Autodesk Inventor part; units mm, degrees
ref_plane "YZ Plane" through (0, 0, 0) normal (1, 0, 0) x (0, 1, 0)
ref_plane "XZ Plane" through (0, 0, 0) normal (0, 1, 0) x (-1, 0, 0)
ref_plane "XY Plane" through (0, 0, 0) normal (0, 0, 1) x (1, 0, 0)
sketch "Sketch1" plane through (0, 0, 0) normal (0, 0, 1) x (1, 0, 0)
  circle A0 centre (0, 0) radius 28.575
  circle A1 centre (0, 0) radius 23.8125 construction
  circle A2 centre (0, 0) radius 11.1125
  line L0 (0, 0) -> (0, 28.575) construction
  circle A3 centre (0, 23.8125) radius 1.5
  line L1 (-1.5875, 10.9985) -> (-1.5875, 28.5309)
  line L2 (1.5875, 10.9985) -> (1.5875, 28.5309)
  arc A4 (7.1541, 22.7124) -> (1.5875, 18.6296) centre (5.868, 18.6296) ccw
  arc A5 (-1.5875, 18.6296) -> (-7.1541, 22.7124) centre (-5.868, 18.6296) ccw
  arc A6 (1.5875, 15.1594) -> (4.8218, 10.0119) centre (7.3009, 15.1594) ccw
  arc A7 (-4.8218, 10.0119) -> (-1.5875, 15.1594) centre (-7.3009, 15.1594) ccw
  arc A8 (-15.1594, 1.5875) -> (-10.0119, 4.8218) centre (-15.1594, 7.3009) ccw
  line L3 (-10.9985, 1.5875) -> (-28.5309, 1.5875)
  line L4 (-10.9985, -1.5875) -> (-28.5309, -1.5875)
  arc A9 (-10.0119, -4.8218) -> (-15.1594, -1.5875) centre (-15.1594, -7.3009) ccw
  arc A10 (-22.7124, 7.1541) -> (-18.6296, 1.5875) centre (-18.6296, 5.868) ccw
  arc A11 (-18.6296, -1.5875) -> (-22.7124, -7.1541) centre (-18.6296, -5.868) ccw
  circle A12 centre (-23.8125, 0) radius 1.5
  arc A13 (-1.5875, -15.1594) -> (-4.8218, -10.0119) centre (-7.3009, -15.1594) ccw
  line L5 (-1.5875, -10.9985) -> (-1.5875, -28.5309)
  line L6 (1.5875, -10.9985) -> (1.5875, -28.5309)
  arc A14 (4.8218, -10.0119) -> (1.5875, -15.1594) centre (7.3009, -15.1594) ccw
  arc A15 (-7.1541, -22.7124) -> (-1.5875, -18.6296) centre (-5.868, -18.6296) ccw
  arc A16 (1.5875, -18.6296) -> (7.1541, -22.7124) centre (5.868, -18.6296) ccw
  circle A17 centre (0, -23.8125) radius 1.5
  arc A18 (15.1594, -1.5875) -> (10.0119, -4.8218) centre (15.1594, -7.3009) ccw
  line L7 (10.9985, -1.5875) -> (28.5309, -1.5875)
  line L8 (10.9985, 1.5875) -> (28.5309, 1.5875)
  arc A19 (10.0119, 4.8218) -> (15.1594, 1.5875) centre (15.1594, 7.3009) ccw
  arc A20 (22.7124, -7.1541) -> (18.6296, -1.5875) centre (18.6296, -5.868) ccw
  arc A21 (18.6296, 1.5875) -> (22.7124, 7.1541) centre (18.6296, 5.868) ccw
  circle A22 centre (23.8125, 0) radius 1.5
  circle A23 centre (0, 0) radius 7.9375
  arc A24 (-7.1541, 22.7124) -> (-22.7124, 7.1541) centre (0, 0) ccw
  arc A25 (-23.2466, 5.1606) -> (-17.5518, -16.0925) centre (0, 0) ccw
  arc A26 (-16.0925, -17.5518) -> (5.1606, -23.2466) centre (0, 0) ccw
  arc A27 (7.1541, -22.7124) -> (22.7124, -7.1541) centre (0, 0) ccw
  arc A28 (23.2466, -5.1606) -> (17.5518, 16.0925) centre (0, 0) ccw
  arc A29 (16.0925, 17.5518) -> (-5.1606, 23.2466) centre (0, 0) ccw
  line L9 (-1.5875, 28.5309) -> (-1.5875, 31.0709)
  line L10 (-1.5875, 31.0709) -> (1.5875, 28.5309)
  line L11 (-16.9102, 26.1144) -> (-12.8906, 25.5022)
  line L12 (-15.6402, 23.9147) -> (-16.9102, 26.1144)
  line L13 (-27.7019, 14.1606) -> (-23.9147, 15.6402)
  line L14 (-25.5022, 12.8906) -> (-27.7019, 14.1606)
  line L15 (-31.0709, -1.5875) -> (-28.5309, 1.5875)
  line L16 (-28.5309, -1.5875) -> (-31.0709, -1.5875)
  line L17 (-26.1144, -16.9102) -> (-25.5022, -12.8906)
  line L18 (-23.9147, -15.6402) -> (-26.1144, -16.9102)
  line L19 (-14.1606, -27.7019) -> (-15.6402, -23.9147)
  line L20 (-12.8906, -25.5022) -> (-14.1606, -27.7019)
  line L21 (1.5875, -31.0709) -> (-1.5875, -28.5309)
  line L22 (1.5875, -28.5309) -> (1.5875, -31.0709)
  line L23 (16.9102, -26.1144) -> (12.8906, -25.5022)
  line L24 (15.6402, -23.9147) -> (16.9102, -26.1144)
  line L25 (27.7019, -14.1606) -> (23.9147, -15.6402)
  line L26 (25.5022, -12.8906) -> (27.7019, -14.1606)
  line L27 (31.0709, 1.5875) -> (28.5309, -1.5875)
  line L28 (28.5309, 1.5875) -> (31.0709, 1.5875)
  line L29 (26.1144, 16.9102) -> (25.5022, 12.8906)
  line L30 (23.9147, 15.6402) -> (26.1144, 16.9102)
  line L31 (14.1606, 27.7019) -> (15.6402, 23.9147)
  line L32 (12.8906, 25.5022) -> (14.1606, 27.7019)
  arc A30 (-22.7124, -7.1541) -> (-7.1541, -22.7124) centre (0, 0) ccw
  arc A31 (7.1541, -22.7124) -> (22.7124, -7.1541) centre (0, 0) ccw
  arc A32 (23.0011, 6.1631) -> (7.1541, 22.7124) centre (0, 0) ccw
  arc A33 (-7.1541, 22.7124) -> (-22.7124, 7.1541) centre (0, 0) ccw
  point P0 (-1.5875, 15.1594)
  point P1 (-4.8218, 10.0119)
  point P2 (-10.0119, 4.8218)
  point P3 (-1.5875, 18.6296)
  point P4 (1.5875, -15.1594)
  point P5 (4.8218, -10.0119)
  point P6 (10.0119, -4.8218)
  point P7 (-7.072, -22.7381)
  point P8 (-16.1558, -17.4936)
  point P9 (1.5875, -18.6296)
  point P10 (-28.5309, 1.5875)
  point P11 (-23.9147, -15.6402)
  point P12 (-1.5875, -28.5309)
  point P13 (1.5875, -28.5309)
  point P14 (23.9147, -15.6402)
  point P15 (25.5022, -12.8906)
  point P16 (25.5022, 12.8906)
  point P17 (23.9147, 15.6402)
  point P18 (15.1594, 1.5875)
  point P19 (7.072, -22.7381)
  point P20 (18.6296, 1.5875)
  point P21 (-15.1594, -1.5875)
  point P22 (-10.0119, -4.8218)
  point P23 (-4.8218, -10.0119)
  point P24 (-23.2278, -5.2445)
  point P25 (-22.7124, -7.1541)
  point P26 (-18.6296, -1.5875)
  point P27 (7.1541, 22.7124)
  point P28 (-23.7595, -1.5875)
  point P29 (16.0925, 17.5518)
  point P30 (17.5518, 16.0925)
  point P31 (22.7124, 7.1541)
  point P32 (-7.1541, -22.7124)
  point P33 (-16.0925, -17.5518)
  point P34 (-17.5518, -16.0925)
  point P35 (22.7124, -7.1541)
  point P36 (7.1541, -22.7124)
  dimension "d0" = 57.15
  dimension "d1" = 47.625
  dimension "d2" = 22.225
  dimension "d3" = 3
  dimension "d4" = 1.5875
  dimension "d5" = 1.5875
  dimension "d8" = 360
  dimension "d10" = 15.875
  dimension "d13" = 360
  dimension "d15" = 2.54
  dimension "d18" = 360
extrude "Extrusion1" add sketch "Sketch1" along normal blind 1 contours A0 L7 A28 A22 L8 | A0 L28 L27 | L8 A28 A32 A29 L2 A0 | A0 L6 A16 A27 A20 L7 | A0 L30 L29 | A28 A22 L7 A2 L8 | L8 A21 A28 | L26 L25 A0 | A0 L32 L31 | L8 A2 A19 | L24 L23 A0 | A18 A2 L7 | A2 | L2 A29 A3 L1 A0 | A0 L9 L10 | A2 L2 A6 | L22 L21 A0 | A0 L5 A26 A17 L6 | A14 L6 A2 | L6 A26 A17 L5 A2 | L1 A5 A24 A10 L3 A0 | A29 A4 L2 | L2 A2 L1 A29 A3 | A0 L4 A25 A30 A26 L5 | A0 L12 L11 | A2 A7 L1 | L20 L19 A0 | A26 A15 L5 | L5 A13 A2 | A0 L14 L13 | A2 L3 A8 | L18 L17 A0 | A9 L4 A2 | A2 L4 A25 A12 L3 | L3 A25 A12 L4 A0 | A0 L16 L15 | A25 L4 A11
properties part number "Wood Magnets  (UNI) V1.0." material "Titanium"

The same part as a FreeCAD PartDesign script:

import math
import FreeCAD as App
import Part
import Sketcher
Q = App.Units.Quantity

doc = App.newDocument("Part")
body = doc.addObject("PartDesign::Body", "Body")

sketch1 = body.newObject("Sketcher::SketchObject", "Sketch")
sketch1.AttachmentSupport = (doc.getObject("XY_Plane"), [""])
sketch1.MapMode = "FlatFace"
sketch1.addGeometry([
    Part.LineSegment(App.Vector(28.5, -1.6, 0), App.Vector(31.1, 1.6, 0)),
    Part.LineSegment(App.Vector(31.1, 1.6, 0), App.Vector(28.5, 1.6, 0)),
    Part.ArcOfCircle(Part.Circle(App.Vector(0, 0, 0), App.Vector(0, 0, 1), 28.6), math.radians(3), math.radians(27)),
    Part.LineSegment(App.Vector(25.5, 12.9, 0), App.Vector(26.1, 16.9, 0)),
    Part.LineSegment(App.Vector(26.1, 16.9, 0), App.Vector(23.9, 15.6, 0)),
    Part.ArcOfCircle(Part.Circle(App.Vector(0, 0, 0), App.Vector(0, 0, 1), 28.6), math.radians(33), math.radians(57)),
    Part.LineSegment(App.Vector(15.6, 23.9, 0), App.Vector(14.2, 27.7, 0)),
    Part.LineSegment(App.Vector(14.2, 27.7, 0), App.Vector(12.9, 25.5, 0)),
    Part.ArcOfCircle(Part.Circle(App.Vector(0, 0, 0), App.Vector(0, 0, 1), 28.6), math.radians(63), math.radians(87)),
    Part.LineSegment(App.Vector(1.6, 28.5, 0), App.Vector(-1.6, 31.1, 0)),
    Part.LineSegment(App.Vector(-1.6, 31.1, 0), App.Vector(-1.6, 28.5, 0)),
    Part.ArcOfCircle(Part.Circle(App.Vector(0, 0, 0), App.Vector(0, 0, 1), 28.6), math.radians(93), math.radians(117)),
    Part.LineSegment(App.Vector(-12.9, 25.5, 0), App.Vector(-16.9, 26.1, 0)),
    Part.LineSegment(App.Vector(-16.9, 26.1, 0), App.Vector(-15.6, 23.9, 0)),
    Part.ArcOfCircle(Part.Circle(App.Vector(0, 0, 0), App.Vector(0, 0, 1), 28.6), math.radians(123), math.radians(147)),
    Part.LineSegment(App.Vector(-23.9, 15.6, 0), App.Vector(-27.7, 14.2, 0)),
    Part.LineSegment(App.Vector(-27.7, 14.2, 0), App.Vector(-25.5, 12.9, 0)),
    Part.ArcOfCircle(Part.Circle(App.Vector(0, 0, 0), App.Vector(0, 0, 1), 28.6), math.radians(153), math.radians(177)),
    Part.LineSegment(App.Vector(-28.5, 1.6, 0), App.Vector(-31.1, -1.6, 0)),
    Part.LineSegment(App.Vector(-31.1, -1.6, 0), App.Vector(-28.5, -1.6, 0)),
    Part.ArcOfCircle(Part.Circle(App.Vector(0, 0, 0), App.Vector(0, 0, 1), 28.6), math.radians(-177), math.radians(-153)),
    Part.LineSegment(App.Vector(-25.5, -12.9, 0), App.Vector(-26.1, -16.9, 0)),
    Part.LineSegment(App.Vector(-26.1, -16.9, 0), App.Vector(-23.9, -15.6, 0)),
    Part.ArcOfCircle(Part.Circle(App.Vector(0, 0, 0), App.Vector(0, 0, 1), 28.6), math.radians(-147), math.radians(-123)),
    Part.LineSegment(App.Vector(-15.6, -23.9, 0), App.Vector(-14.2, -27.7, 0)),
    Part.LineSegment(App.Vector(-14.2, -27.7, 0), App.Vector(-12.9, -25.5, 0)),
    Part.ArcOfCircle(Part.Circle(App.Vector(0, 0, 0), App.Vector(0, 0, 1), 28.6), math.radians(-117), math.radians(-93)),
    Part.LineSegment(App.Vector(-1.6, -28.5, 0), App.Vector(1.6, -31.1, 0)),
    Part.LineSegment(App.Vector(1.6, -31.1, 0), App.Vector(1.6, -28.5, 0)),
    Part.ArcOfCircle(Part.Circle(App.Vector(0, 0, 0), App.Vector(0, 0, 1), 28.6), math.radians(-87), math.radians(-63)),
    Part.LineSegment(App.Vector(12.9, -25.5, 0), App.Vector(16.9, -26.1, 0)),
    Part.LineSegment(App.Vector(16.9, -26.1, 0), App.Vector(15.6, -23.9, 0)),
    Part.ArcOfCircle(Part.Circle(App.Vector(0, 0, 0), App.Vector(0, 0, 1), 28.6), math.radians(-57), math.radians(-33)),
    Part.LineSegment(App.Vector(23.9, -15.6, 0), App.Vector(27.7, -14.2, 0)),
    Part.LineSegment(App.Vector(27.7, -14.2, 0), App.Vector(25.5, -12.9, 0)),
    Part.ArcOfCircle(Part.Circle(App.Vector(0, 0, 0), App.Vector(0, 0, 1), 28.6), math.radians(-27), math.radians(-3)),
    Part.Circle(App.Vector(23.8, 0, 0), App.Vector(0, 0, 1), 1.5),
    Part.ArcOfCircle(Part.Circle(App.Vector(5.9, -18.6, 0), App.Vector(0, 0, 1), 4.3), math.radians(180), math.radians(287)),
    Part.LineSegment(App.Vector(1.6, -18.6, 0), App.Vector(1.6, -15.2, 0)),
    Part.ArcOfCircle(Part.Circle(App.Vector(7.3, -15.2, 0), App.Vector(0, 0, 1), 5.7), math.radians(116), math.radians(180)),
    Part.ArcOfCircle(Part.Circle(App.Vector(0, 0, 0), App.Vector(0, 0, 1), 11.1), math.radians(-64), math.radians(-26)),
    Part.ArcOfCircle(Part.Circle(App.Vector(15.2, -7.3, 0), App.Vector(0, 0, 1), 5.7), math.radians(90), math.radians(154)),
    Part.LineSegment(App.Vector(15.2, -1.6, 0), App.Vector(18.6, -1.6, 0)),
    Part.ArcOfCircle(Part.Circle(App.Vector(18.6, -5.9, 0), App.Vector(0, 0, 1), 4.3), math.radians(-17), math.radians(90)),
    Part.ArcOfCircle(Part.Circle(App.Vector(0, 0, 0), App.Vector(0, 0, 1), 23.8), math.radians(-73), math.radians(-17)),
    Part.LineSegment(App.Vector(18.6, 1.6, 0), App.Vector(15.2, 1.6, 0)),
    Part.ArcOfCircle(Part.Circle(App.Vector(15.2, 7.3, 0), App.Vector(0, 0, 1), 5.7), math.radians(-154), math.radians(-90)),
    Part.ArcOfCircle(Part.Circle(App.Vector(0, 0, 0), App.Vector(0, 0, 1), 11.1), math.radians(26), math.radians(64)),
    Part.ArcOfCircle(Part.Circle(App.Vector(7.3, 15.2, 0), App.Vector(0, 0, 1), 5.7), math.radians(180), math.radians(244)),
    Part.LineSegment(App.Vector(1.6, 15.2, 0), App.Vector(1.6, 18.6, 0)),
    Part.ArcOfCircle(Part.Circle(App.Vector(5.9, 18.6, 0), App.Vector(0, 0, 1), 4.3), math.radians(73), math.radians(180)),
    Part.ArcOfCircle(Part.Circle(App.Vector(0, 0, 0), App.Vector(0, 0, 1), 23.8), math.radians(47), math.radians(73)),
    Part.ArcOfCircle(Part.Circle(App.Vector(0, 0, 0), App.Vector(0, 0, 1), 23.8), math.radians(42.52), math.radians(47.48)),
    Part.ArcOfCircle(Part.Circle(App.Vector(0, 0, 0), App.Vector(0, 0, 1), 23.8), math.radians(17), math.radians(43)),
    Part.ArcOfCircle(Part.Circle(App.Vector(18.6, 5.9, 0), App.Vector(0, 0, 1), 4.3), math.radians(-90), math.radians(17)),
    Part.Circle(App.Vector(0, -23.8, 0), App.Vector(0, 0, 1), 1.5),
    Part.LineSegment(App.Vector(-1.6, -15.2, 0), App.Vector(-1.6, -18.6, 0)),
    Part.ArcOfCircle(Part.Circle(App.Vector(-5.9, -18.6, 0), App.Vector(0, 0, 1), 4.3), math.radians(-107), math.radians(0)),
    Part.ArcOfCircle(Part.Circle(App.Vector(0, 0, 0), App.Vector(0, 0, 1), 23.8), math.radians(-133), math.radians(-107)),
    Part.ArcOfCircle(Part.Circle(App.Vector(0, 0, 0), App.Vector(0, 0, 1), 23.8), math.radians(-137.48), math.radians(-132.52)),
    Part.ArcOfCircle(Part.Circle(App.Vector(0, 0, 0), App.Vector(0, 0, 1), 23.8), math.radians(-163), math.radians(-137)),
    Part.ArcOfCircle(Part.Circle(App.Vector(-18.6, -5.9, 0), App.Vector(0, 0, 1), 4.3), math.radians(90), math.radians(197)),
    Part.LineSegment(App.Vector(-18.6, -1.6, 0), App.Vector(-15.2, -1.6, 0)),
    Part.ArcOfCircle(Part.Circle(App.Vector(-15.2, -7.3, 0), App.Vector(0, 0, 1), 5.7), math.radians(26), math.radians(90)),
    Part.ArcOfCircle(Part.Circle(App.Vector(0, 0, 0), App.Vector(0, 0, 1), 11.1), math.radians(-154), math.radians(-116)),
    Part.ArcOfCircle(Part.Circle(App.Vector(-7.3, -15.2, 0), App.Vector(0, 0, 1), 5.7), math.radians(0), math.radians(64)),
    Part.Circle(App.Vector(0, 0, 0), App.Vector(0, 0, 1), 7.9),
    Part.ArcOfCircle(Part.Circle(App.Vector(0, 0, 0), App.Vector(0, 0, 1), 11.1), math.radians(116), math.radians(154)),
    Part.ArcOfCircle(Part.Circle(App.Vector(-15.2, 7.3, 0), App.Vector(0, 0, 1), 5.7), math.radians(-90), math.radians(-26)),
    Part.LineSegment(App.Vector(-15.2, 1.6, 0), App.Vector(-18.6, 1.6, 0)),
    Part.ArcOfCircle(Part.Circle(App.Vector(-18.6, 5.9, 0), App.Vector(0, 0, 1), 4.3), math.radians(163), math.radians(270)),
    Part.ArcOfCircle(Part.Circle(App.Vector(0, 0, 0), App.Vector(0, 0, 1), 23.8), math.radians(107), math.radians(163)),
    Part.ArcOfCircle(Part.Circle(App.Vector(-5.9, 18.6, 0), App.Vector(0, 0, 1), 4.3), math.radians(0), math.radians(107)),
    Part.LineSegment(App.Vector(-1.6, 18.6, 0), App.Vector(-1.6, 15.2, 0)),
    Part.ArcOfCircle(Part.Circle(App.Vector(-7.3, 15.2, 0), App.Vector(0, 0, 1), 5.7), math.radians(-64), math.radians(0)),
    Part.Circle(App.Vector(0, 23.8, 0), App.Vector(0, 0, 1), 1.5),
    Part.Circle(App.Vector(-23.8, 0, 0), App.Vector(0, 0, 1), 1.5),
], False)
sketch1.addConstraint([
    Sketcher.Constraint("Coincident", 0, 2, 1, 1),
    Sketcher.Constraint("Coincident", 1, 2, 2, 1),
    Sketcher.Constraint("Coincident", 2, 2, 3, 1),
    Sketcher.Constraint("Coincident", 3, 2, 4, 1),
    Sketcher.Constraint("Coincident", 4, 2, 5, 1),
    Sketcher.Constraint("Coincident", 5, 2, 6, 1),
    Sketcher.Constraint("Coincident", 6, 2, 7, 1),
    Sketcher.Constraint("Coincident", 7, 2, 8, 1),
    Sketcher.Constraint("Coincident", 8, 2, 9, 1),
    Sketcher.Constraint("Coincident", 9, 2, 10, 1),
    Sketcher.Constraint("Coincident", 10, 2, 11, 1),
    Sketcher.Constraint("Coincident", 11, 2, 12, 1),
    Sketcher.Constraint("Coincident", 12, 2, 13, 1),
    Sketcher.Constraint("Coincident", 13, 2, 14, 1),
    Sketcher.Constraint("Coincident", 14, 2, 15, 1),
    Sketcher.Constraint("Coincident", 15, 2, 16, 1),
    Sketcher.Constraint("Coincident", 16, 2, 17, 1),
    Sketcher.Constraint("Coincident", 17, 2, 18, 1),
    Sketcher.Constraint("Coincident", 18, 2, 19, 1),
    Sketcher.Constraint("Coincident", 19, 2, 20, 1),
    Sketcher.Constraint("Coincident", 20, 2, 21, 1),
    Sketcher.Constraint("Coincident", 21, 2, 22, 1),
    Sketcher.Constraint("Coincident", 22, 2, 23, 1),
    Sketcher.Constraint("Coincident", 23, 2, 24, 1),
    Sketcher.Constraint("Coincident", 24, 2, 25, 1),
    Sketcher.Constraint("Coincident", 25, 2, 26, 1),
    Sketcher.Constraint("Coincident", 26, 2, 27, 1),
    Sketcher.Constraint("Coincident", 27, 2, 28, 1),
    Sketcher.Constraint("Coincident", 28, 2, 29, 1),
    Sketcher.Constraint("Coincident", 29, 2, 30, 1),
    Sketcher.Constraint("Coincident", 30, 2, 31, 1),
    Sketcher.Constraint("Coincident", 31, 2, 32, 1),
    Sketcher.Constraint("Coincident", 32, 2, 33, 1),
    Sketcher.Constraint("Coincident", 33, 2, 34, 1),
    Sketcher.Constraint("Coincident", 34, 2, 35, 1),
    Sketcher.Constraint("Coincident", 35, 2, 0, 1),
    Sketcher.Constraint("Tangent", 37, 1, 38, 1),
    Sketcher.Constraint("Tangent", 38, 2, 39, 2),
    Sketcher.Constraint("Tangent", 39, 1, 40, 1),
    Sketcher.Constraint("Tangent", 40, 2, 41, 2),
    Sketcher.Constraint("Tangent", 41, 1, 42, 1),
    Sketcher.Constraint("Tangent", 42, 2, 43, 2),
    Sketcher.Constraint("Tangent", 43, 1, 44, 2),
    Sketcher.Constraint("Tangent", 44, 1, 37, 2),
    Sketcher.Constraint("Tangent", 45, 2, 46, 2),
    Sketcher.Constraint("Tangent", 46, 1, 47, 1),
    Sketcher.Constraint("Tangent", 47, 2, 48, 2),
    Sketcher.Constraint("Tangent", 48, 1, 49, 1),
    Sketcher.Constraint("Tangent", 49, 2, 50, 2),
    Sketcher.Constraint("Tangent", 50, 1, 51, 2),
    Sketcher.Constraint("Tangent", 51, 1, 52, 2),
    Sketcher.Constraint("Tangent", 52, 1, 53, 2),
    Sketcher.Constraint("Tangent", 53, 1, 54, 2),
    Sketcher.Constraint("Tangent", 54, 1, 45, 1),
    Sketcher.Constraint("Tangent", 56, 2, 57, 2),
    Sketcher.Constraint("Tangent", 57, 1, 58, 2),
    Sketcher.Constraint("Tangent", 58, 1, 59, 2),
    Sketcher.Constraint("Tangent", 59, 1, 60, 2),
    Sketcher.Constraint("Tangent", 60, 1, 61, 2),
    Sketcher.Constraint("Tangent", 61, 1, 62, 1),
    Sketcher.Constraint("Tangent", 62, 2, 63, 2),
    Sketcher.Constraint("Tangent", 63, 1, 64, 1),
    Sketcher.Constraint("Tangent", 64, 2, 65, 2),
    Sketcher.Constraint("Tangent", 65, 1, 56, 1),
    Sketcher.Constraint("Tangent", 67, 2, 68, 2),
    Sketcher.Constraint("Tangent", 68, 1, 69, 1),
    Sketcher.Constraint("Tangent", 69, 2, 70, 2),
    Sketcher.Constraint("Tangent", 70, 1, 71, 2),
    Sketcher.Constraint("Tangent", 71, 1, 72, 2),
    Sketcher.Constraint("Tangent", 72, 1, 73, 1),
    Sketcher.Constraint("Tangent", 73, 2, 74, 2),
    Sketcher.Constraint("Tangent", 74, 1, 67, 1),
    Sketcher.Constraint("Horizontal", 1),
    Sketcher.Constraint("Vertical", 10),
    Sketcher.Constraint("Horizontal", 19),
    Sketcher.Constraint("Vertical", 28),
    Sketcher.Constraint("Vertical", 38),
    Sketcher.Constraint("Horizontal", 42),
    Sketcher.Constraint("Horizontal", 45),
    Sketcher.Constraint("Vertical", 49),
    Sketcher.Constraint("Vertical", 56),
    Sketcher.Constraint("Horizontal", 62),
    Sketcher.Constraint("Horizontal", 69),
    Sketcher.Constraint("Vertical", 73),
    Sketcher.Constraint("Coincident", 2, 3, -1, 1),
    Sketcher.Constraint("Coincident", 5, 3, -1, 1),
    Sketcher.Constraint("Coincident", 8, 3, -1, 1),
    Sketcher.Constraint("Coincident", 11, 3, -1, 1),
    Sketcher.Constraint("Coincident", 14, 3, -1, 1),
    Sketcher.Constraint("Coincident", 17, 3, -1, 1),
    Sketcher.Constraint("Coincident", 20, 3, -1, 1),
    Sketcher.Constraint("Coincident", 23, 3, -1, 1),
    Sketcher.Constraint("Coincident", 26, 3, -1, 1),
    Sketcher.Constraint("Coincident", 29, 3, -1, 1),
    Sketcher.Constraint("Coincident", 32, 3, -1, 1),
    Sketcher.Constraint("Coincident", 35, 3, -1, 1),
    Sketcher.Constraint("Coincident", 40, 3, -1, 1),
    Sketcher.Constraint("Coincident", 44, 3, -1, 1),
    Sketcher.Constraint("Coincident", 47, 3, -1, 1),
    Sketcher.Constraint("Coincident", 51, 3, -1, 1),
    Sketcher.Constraint("Coincident", 53, 3, -1, 1),
    Sketcher.Constraint("Coincident", 58, 3, -1, 1),
    Sketcher.Constraint("Coincident", 60, 3, -1, 1),
    Sketcher.Constraint("Coincident", 64, 3, -1, 1),
    Sketcher.Constraint("Coincident", 66, 3, -1, 1),
    Sketcher.Constraint("Coincident", 67, 3, -1, 1),
    Sketcher.Constraint("Coincident", 71, 3, -1, 1),
    Sketcher.Constraint("Equal", 2, 5),
    Sketcher.Constraint("Equal", 5, 8),
    Sketcher.Constraint("Equal", 8, 11),
    Sketcher.Constraint("Equal", 11, 14),
    Sketcher.Constraint("Equal", 14, 17),
    Sketcher.Constraint("Equal", 17, 20),
    Sketcher.Constraint("Equal", 20, 23),
    Sketcher.Constraint("Equal", 23, 26),
    Sketcher.Constraint("Equal", 26, 29),
    Sketcher.Constraint("Equal", 29, 32),
    Sketcher.Constraint("Equal", 32, 35),
    Sketcher.Constraint("Equal", 39, 41),
    Sketcher.Constraint("Equal", 37, 43),
    Sketcher.Constraint("Equal", 41, 46),
    Sketcher.Constraint("Equal", 40, 47),
    Sketcher.Constraint("Equal", 46, 48),
    Sketcher.Constraint("Equal", 43, 50),
    Sketcher.Constraint("Equal", 44, 51),
    Sketcher.Constraint("Equal", 50, 54),
    Sketcher.Constraint("Equal", 36, 55),
    Sketcher.Constraint("Equal", 54, 57),
    Sketcher.Constraint("Equal", 53, 58),
    Sketcher.Constraint("Equal", 57, 61),
    Sketcher.Constraint("Equal", 48, 63),
    Sketcher.Constraint("Equal", 47, 64),
    Sketcher.Constraint("Equal", 63, 65),
    Sketcher.Constraint("Equal", 64, 67),
    Sketcher.Constraint("Equal", 65, 68),
    Sketcher.Constraint("Equal", 61, 70),
    Sketcher.Constraint("Equal", 60, 71),
    Sketcher.Constraint("Equal", 70, 72),
    Sketcher.Constraint("Equal", 68, 74),
    Sketcher.Constraint("Equal", 55, 75),
    Sketcher.Constraint("Equal", 75, 76),
    Sketcher.Constraint("Symmetric", 55, 3, 75, 3, -1, 1),
    Sketcher.Constraint("Symmetric", 36, 3, 76, 3, -1, 1),
    Sketcher.Constraint("Symmetric", 0, 2, 18, 2, -1, 1),
    Sketcher.Constraint("Symmetric", 3, 2, 21, 2, -1, 1),
    Sketcher.Constraint("Symmetric", 6, 2, 24, 2, -1, 1),
    Sketcher.Constraint("Symmetric", 9, 2, 27, 2, -1, 1),
    Sketcher.Constraint("Symmetric", 12, 2, 30, 2, -1, 1),
    Sketcher.Constraint("Symmetric", 15, 2, 33, 2, -1, 1),
    Sketcher.Constraint("PointOnObject", 36, 3, -1),
    Sketcher.Constraint("PointOnObject", 55, 3, -2),
    Sketcher.Constraint("Perpendicular", 0, 9),
    Sketcher.Constraint("Perpendicular", 3, 12),
    Sketcher.Constraint("Perpendicular", 4, 13),
    Sketcher.Constraint("Perpendicular", 6, 15),
    Sketcher.Constraint("Perpendicular", 7, 16),
    Sketcher.Constraint("Perpendicular", 9, 18),
    Sketcher.Constraint("Perpendicular", 12, 21),
    Sketcher.Constraint("Perpendicular", 13, 22),
    Sketcher.Constraint("Perpendicular", 15, 24),
    Sketcher.Constraint("Perpendicular", 16, 25),
    Sketcher.Constraint("Perpendicular", 18, 27),
    Sketcher.Constraint("Perpendicular", 21, 30),
    Sketcher.Constraint("Perpendicular", 22, 31),
    Sketcher.Constraint("Perpendicular", 24, 33),
    Sketcher.Constraint("Perpendicular", 25, 34),
    Sketcher.Constraint("Horizontal", 37, 3, 57, 3),
    Sketcher.Constraint("Horizontal", 43, 3, 61, 3),
    Sketcher.Constraint("Horizontal", 46, 3, 68, 3),
    Sketcher.Constraint("Horizontal", 50, 3, 72, 3),
    Sketcher.Constraint("Horizontal", 8, 2, 10, 2),
    Sketcher.Constraint("Horizontal", 7, 2, 11, 2),
    Sketcher.Constraint("Horizontal", 5, 2, 13, 2),
    Sketcher.Constraint("Horizontal", 4, 2, 14, 2),
    Sketcher.Constraint("Horizontal", 2, 2, 16, 2),
    Sketcher.Constraint("Horizontal", 1, 2, 17, 2),
    Sketcher.Constraint("Horizontal", 35, 2, 41, 1),
    Sketcher.Constraint("Horizontal", 17, 2, 45, 2),
    Sketcher.Constraint("Vertical", 39, 3, 48, 3),
    Sketcher.Constraint("Vertical", 28, 2, 37, 1),
    Sketcher.Constraint("Equal", 19, 10),
    Sketcher.Constraint("Equal", 0, 3),
    Sketcher.Constraint("Equal", 3, 6),
    Sketcher.Constraint("Equal", 4, 7),
    Sketcher.Constraint("Equal", 9, 12),
    Sketcher.Constraint("Equal", 7, 13),
    Sketcher.Constraint("Diameter", 66, Q("0.625 in")),
    Sketcher.Constraint("DistanceX", 1, 2, 1, 1, Q("0.1 in")),
    Sketcher.Constraint("Radius", 2, Q("1.125 in")),
    Sketcher.Constraint("Radius", 40, Q("0.4375 in")),
    Sketcher.Constraint("Radius", 44, Q("0.9375 in")),
    Sketcher.Constraint("Distance", 4, Q("0.1 in")),
    Sketcher.Constraint("Diameter", 36, Q("0.1181 in")),
    Sketcher.Constraint("DistanceY", -1, 1, 0, 2, Q("0.0625 in")),
    Sketcher.Constraint("Angle", 4, Q("-150 deg")),
    Sketcher.Constraint("Angle", 7, Q("-120 deg")),
    Sketcher.Constraint("Radius", 37, Q("4.2805 mm")),
    Sketcher.Constraint("Radius", 39, Q("5.7134 mm")),
    Sketcher.Constraint("DistanceX", -1, 1, 36, 3, Q("0.9375 in")),
    Sketcher.Constraint("DistanceY", 55, 3, -1, 1, Q("0.9375 in")),
    Sketcher.Constraint("DistanceX", -1, 1, 51, 1, Q("16.0925 mm")),
    Sketcher.Constraint("DistanceX", -1, 1, 52, 1, Q("17.5518 mm")),
    Sketcher.Constraint("DistanceX", 58, 1, -1, 1, Q("16.0925 mm")),
    Sketcher.Constraint("DistanceX", 59, 1, -1, 1, Q("17.5518 mm")),
])
pad1 = body.newObject("PartDesign::Pad", "Pad")
pad1.Profile = sketch1
pad1.Length = 1

doc.recompute()
